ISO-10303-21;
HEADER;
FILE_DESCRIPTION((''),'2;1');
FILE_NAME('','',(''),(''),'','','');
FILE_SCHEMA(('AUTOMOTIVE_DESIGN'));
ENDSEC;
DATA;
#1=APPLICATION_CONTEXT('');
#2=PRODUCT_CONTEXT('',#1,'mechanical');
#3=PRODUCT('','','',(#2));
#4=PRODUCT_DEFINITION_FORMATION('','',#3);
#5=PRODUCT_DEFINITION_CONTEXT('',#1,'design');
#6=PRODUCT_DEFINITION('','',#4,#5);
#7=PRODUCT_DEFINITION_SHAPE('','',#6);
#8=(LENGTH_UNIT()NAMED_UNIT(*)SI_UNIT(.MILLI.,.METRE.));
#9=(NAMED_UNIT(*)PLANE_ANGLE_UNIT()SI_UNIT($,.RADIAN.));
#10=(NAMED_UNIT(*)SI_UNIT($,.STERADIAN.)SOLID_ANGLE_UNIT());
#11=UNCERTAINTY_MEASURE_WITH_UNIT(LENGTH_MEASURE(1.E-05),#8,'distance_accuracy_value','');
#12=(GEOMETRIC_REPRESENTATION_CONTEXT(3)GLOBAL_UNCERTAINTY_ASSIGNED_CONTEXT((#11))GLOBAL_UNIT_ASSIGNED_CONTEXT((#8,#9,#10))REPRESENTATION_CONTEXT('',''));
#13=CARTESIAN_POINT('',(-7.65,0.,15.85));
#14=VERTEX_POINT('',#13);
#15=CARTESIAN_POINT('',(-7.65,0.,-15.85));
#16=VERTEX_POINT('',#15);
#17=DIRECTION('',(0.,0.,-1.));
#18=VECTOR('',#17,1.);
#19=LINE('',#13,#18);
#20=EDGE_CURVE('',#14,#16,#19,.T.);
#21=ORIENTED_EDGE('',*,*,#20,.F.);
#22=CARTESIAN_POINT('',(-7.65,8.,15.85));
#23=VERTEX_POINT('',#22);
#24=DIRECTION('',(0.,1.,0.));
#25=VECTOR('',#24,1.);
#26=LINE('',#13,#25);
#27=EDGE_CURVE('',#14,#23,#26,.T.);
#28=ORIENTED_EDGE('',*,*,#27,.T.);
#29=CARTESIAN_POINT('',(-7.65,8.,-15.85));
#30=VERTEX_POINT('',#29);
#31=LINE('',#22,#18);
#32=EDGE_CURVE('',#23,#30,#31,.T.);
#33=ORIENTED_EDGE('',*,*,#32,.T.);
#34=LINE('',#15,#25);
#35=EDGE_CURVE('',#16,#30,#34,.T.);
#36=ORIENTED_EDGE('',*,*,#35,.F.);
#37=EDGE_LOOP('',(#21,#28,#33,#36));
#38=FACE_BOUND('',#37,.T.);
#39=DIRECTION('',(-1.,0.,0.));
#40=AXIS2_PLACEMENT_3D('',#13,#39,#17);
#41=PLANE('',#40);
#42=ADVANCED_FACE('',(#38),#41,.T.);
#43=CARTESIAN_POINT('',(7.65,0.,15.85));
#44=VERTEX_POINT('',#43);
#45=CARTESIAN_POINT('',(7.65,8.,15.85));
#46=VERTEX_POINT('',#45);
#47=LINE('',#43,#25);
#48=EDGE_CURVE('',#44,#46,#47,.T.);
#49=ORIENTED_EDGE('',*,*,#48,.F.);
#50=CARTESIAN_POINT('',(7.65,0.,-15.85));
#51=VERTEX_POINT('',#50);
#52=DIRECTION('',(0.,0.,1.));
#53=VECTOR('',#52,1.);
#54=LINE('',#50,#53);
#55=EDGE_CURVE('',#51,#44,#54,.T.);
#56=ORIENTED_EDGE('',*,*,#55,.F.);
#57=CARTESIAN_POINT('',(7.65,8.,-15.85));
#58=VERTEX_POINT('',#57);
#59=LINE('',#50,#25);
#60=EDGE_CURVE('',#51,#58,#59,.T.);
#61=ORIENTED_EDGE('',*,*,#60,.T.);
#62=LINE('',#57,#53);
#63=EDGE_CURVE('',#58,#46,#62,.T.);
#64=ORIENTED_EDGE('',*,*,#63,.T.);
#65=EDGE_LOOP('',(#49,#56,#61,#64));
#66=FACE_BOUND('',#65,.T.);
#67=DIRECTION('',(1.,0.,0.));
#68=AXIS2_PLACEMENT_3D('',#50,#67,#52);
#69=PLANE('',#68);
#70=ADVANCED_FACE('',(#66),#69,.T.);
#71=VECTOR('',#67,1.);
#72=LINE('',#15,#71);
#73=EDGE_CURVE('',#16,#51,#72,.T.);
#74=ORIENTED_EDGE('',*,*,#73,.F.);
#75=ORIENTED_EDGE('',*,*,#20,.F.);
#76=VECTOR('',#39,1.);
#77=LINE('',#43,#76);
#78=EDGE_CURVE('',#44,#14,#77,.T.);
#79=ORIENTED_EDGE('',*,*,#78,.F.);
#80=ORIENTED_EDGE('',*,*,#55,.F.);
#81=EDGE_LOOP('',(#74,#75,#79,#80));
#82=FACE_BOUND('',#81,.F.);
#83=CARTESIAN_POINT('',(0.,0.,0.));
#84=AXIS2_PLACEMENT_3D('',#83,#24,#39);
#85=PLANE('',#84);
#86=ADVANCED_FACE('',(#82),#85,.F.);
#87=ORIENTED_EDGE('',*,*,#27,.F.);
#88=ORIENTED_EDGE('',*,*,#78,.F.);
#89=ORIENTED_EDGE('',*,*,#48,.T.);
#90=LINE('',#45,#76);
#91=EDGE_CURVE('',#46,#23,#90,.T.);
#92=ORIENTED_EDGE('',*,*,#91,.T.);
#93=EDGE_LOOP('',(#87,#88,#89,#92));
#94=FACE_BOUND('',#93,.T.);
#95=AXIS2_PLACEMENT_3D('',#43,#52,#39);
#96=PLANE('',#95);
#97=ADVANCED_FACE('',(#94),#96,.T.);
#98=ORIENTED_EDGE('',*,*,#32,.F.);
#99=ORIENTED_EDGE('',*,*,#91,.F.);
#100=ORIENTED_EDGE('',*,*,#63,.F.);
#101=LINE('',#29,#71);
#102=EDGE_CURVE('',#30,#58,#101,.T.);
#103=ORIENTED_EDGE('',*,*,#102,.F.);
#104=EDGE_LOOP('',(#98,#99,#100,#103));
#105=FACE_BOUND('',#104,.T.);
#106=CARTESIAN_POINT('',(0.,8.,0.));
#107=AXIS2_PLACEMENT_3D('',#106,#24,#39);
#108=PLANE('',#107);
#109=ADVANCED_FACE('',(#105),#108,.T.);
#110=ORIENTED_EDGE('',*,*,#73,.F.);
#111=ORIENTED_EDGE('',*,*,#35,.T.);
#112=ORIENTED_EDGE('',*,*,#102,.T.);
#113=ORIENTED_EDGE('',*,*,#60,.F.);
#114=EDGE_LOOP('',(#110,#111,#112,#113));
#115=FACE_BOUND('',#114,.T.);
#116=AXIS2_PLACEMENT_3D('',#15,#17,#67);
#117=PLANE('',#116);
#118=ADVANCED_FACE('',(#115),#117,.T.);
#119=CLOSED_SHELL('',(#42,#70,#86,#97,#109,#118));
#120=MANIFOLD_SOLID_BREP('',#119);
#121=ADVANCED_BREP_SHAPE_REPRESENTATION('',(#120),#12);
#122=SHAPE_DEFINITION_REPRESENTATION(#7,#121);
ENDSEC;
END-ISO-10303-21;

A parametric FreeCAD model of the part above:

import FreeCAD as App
import Part
import Sketcher
from FreeCAD import Vector

doc = App.newDocument("Part")
body = doc.addObject("PartDesign::Body", "Body")

sketch1 = body.newObject("Sketcher::SketchObject", "Sketch")
sketch1.AttachmentSupport = (doc.getObject("XZ_Plane"), [""])
sketch1.MapMode = "FlatFace"
sketch1.addGeometry([
    Part.LineSegment(Vector(-7.65, 15.85, 0), Vector(7.65, 15.85, 0)),
    Part.LineSegment(Vector(7.65, 15.85, 0), Vector(7.65, -15.85, 0)),
    Part.LineSegment(Vector(7.65, -15.85, 0), Vector(-7.65, -15.85, 0)),
    Part.LineSegment(Vector(-7.65, -15.85, 0), Vector(-7.65, 15.85, 0)),
], False)
sketch1.addConstraint([
    Sketcher.Constraint("Coincident", 0, 2, 1, 1),
    Sketcher.Constraint("Coincident", 1, 2, 2, 1),
    Sketcher.Constraint("Coincident", 2, 2, 3, 1),
    Sketcher.Constraint("Coincident", 3, 2, 0, 1),
    Sketcher.Constraint("Horizontal", 0),
    Sketcher.Constraint("Vertical", 1),
    Sketcher.Constraint("Horizontal", 2),
    Sketcher.Constraint("Vertical", 3),
    Sketcher.Constraint("Symmetric", 0, 2, 2, 2, -1, 1),
    Sketcher.Constraint("DistanceX", 0, 1, 0, 2, 15.3),
    Sketcher.Constraint("DistanceY", 1, 2, 1, 1, 31.7),
])
pad1 = body.newObject("PartDesign::Pad", "Pad")
pad1.Profile = sketch1
pad1.Length = 8
pad1.Reversed = True

doc.recompute()
